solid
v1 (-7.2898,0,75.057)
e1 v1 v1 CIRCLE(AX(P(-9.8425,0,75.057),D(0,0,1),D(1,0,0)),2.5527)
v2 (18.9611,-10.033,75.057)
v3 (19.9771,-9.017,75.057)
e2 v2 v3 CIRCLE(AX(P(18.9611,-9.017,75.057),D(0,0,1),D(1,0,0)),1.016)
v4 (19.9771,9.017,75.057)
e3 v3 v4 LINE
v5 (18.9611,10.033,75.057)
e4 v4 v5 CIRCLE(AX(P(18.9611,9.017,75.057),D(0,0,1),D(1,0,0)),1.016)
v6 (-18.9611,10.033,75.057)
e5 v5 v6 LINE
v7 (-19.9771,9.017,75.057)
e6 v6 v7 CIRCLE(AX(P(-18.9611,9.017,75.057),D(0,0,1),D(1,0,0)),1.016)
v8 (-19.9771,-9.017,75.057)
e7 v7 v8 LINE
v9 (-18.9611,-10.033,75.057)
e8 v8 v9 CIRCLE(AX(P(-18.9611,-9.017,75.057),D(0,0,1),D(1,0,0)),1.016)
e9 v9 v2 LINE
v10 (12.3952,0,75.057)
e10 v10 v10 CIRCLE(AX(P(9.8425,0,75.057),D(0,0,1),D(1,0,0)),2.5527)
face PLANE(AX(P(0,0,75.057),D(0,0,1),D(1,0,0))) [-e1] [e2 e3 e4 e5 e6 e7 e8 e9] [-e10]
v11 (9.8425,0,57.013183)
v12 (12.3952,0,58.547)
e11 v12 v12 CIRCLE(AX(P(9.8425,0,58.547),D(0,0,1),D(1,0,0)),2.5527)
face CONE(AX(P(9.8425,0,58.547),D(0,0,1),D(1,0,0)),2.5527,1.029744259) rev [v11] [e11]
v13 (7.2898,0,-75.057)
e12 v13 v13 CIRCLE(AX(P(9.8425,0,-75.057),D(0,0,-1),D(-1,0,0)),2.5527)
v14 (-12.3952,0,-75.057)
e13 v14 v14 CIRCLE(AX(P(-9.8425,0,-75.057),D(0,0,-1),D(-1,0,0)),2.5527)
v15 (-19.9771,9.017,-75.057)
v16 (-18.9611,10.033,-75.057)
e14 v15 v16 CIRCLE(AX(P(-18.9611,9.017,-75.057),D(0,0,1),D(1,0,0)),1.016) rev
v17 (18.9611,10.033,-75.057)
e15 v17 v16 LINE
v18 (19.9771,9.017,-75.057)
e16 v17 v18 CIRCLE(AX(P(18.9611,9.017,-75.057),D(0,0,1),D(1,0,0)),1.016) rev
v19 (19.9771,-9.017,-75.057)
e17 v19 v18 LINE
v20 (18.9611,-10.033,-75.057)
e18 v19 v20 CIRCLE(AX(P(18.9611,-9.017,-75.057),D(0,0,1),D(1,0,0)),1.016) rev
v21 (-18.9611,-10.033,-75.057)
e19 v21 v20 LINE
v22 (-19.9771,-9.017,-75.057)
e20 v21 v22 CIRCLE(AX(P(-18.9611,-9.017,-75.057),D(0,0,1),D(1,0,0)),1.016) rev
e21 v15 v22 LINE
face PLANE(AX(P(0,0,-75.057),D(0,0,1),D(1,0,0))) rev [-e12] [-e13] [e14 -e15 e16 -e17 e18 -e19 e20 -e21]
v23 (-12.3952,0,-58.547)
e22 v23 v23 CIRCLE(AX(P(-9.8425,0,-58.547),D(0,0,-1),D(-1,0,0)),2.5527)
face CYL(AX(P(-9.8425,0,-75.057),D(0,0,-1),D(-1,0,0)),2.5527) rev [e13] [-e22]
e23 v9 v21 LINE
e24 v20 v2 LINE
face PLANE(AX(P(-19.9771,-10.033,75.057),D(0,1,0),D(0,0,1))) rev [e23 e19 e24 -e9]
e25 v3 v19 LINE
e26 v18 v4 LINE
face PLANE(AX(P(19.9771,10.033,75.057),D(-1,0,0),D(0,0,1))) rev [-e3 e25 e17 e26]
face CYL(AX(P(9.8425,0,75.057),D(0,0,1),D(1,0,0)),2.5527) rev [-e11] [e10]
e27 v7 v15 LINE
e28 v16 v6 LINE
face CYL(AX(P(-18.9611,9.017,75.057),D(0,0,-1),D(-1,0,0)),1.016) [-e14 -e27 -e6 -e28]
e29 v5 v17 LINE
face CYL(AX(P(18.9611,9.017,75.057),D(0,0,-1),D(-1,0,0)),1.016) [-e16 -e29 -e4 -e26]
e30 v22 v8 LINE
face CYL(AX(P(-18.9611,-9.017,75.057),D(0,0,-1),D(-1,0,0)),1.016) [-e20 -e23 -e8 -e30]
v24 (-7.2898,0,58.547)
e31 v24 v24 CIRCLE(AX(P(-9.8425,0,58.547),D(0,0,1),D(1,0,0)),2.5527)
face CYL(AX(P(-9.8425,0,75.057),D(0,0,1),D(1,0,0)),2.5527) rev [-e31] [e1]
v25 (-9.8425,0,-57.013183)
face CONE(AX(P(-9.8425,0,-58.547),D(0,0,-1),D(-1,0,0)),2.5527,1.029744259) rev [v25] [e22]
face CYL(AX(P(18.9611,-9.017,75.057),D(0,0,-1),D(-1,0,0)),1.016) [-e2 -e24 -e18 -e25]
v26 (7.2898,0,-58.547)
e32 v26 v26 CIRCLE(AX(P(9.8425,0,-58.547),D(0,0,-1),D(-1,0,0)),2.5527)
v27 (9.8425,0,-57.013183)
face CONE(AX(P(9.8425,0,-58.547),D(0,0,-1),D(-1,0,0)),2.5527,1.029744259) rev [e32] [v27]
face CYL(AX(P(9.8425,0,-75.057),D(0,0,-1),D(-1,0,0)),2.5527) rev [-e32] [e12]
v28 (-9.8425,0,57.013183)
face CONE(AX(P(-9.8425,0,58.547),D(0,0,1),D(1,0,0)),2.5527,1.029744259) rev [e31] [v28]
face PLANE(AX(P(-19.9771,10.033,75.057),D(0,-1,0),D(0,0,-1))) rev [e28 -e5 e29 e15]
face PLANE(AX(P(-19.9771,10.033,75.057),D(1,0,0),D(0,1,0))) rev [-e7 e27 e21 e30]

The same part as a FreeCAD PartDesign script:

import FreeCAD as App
import Part
import Sketcher

V = App.Vector
Q = App.Units.Quantity


def edges_at(feature, points):
    """Names of the edges that pass closest to the given points."""
    edges = feature.Shape.Edges
    near = lambda p: min(range(len(edges)), key=lambda i: edges[i].distToShape(Part.Vertex(*p))[0])
    return sorted({f"Edge{near(p) + 1}" for p in points})


def add_polygon(sketch, points):
    """Adds a closed chain of lines whose ends are joined by coincident constraints."""
    first, n = sketch.GeometryCount, len(points)
    for a, b in zip(points, points[1:] + points[:1]):
        sketch.addGeometry(Part.LineSegment(App.Vector(*a, 0), App.Vector(*b, 0)), False)
    for i in range(n):
        sketch.addConstraint(Sketcher.Constraint("Coincident", first + i, 2, first + (i + 1) % n, 1))

doc = App.newDocument("Part")
body = doc.addObject("PartDesign::Body", "Body")

# Sketch on XY plane
sketch1 = doc.addObject("Sketcher::SketchObject", "Sketch")
body.addObject(sketch1)
sketch1.AttachmentSupport = (doc.XY_Plane, [""])
sketch1.MapMode = "FlatFace"
add_polygon(sketch1, [(-19.9771, 10.033), (-19.9771, -10.033), (19.9771, -10.033), (19.9771, 10.033)])  # lines 0-3
sketch1.addConstraint([
    Sketcher.Constraint("Vertical", 0),
    Sketcher.Constraint("Horizontal", 1),
    Sketcher.Constraint("Vertical", 2),
    Sketcher.Constraint("Horizontal", 3),
    Sketcher.Constraint("Symmetric", 0, 2, 2, 2, -1, 1),
    Sketcher.Constraint("DistanceY", 0, 2, 0, 1, Q("0.79 in")),
    Sketcher.Constraint("DistanceX", 1, 1, 1, 2, Q("1.573 in")),
])
pad1 = doc.addObject("PartDesign::Pad", "Pad")
body.addObject(pad1)
pad1.Profile = sketch1
pad1.Length = Q("5.91 in")
pad1.Midplane = True
doc.recompute()

fillet = doc.addObject("PartDesign::Fillet", "Fillet")
body.addObject(fillet)
fillet.Base = (pad1, edges_at(pad1, [
    (19.977, -10.033, 0),
    (-19.977, -10.033, 0),
    (-19.977, 10.033, 0),
    (19.977, 10.033, 0),
]))
fillet.Radius = Q("0.04 in")

# Sketch on YZ plane
sketch2 = doc.addObject("Sketcher::SketchObject", "Sketch001")
body.addObject(sketch2)
sketch2.AttachmentSupport = (doc.YZ_Plane, [""])
sketch2.MapMode = "FlatFace"
sketch2.AttachmentOffset = App.Placement(V(0, 0, 0.3875 * 25.4), App.Rotation())
add_polygon(sketch2, [(0, -57.013183), (0, -75.057), (2.5527, -75.057), (2.5527, -58.547)])  # lines 0-3
sketch2.addConstraint([
    Sketcher.Constraint("Vertical", 0),
    Sketcher.Constraint("Horizontal", 1),
    Sketcher.Constraint("Vertical", 2),
    Sketcher.Constraint("PointOnObject", 0, 2, -2),
    Sketcher.Constraint("Angle", 3, Q("149 deg")),
    Sketcher.Constraint("DistanceY", 2, 1, 2, 2, Q("0.65 in")),
    Sketcher.Constraint("DistanceX", 1, 1, 1, 2, Q("0.1005 in")),
    Sketcher.Constraint("DistanceY", 0, 2, -1, 1, Q("2.955 in")),
])
groove = doc.addObject("PartDesign::Groove", "Groove")
body.addObject(groove)
groove.Profile = sketch2
groove.ReferenceAxis = (sketch2, ["V_Axis"])
groove.Angle = 360
doc.recompute()

linearpattern = doc.addObject("PartDesign::LinearPattern", "LinearPattern")
body.addObject(linearpattern)
linearpattern.Originals = [groove]
linearpattern.Direction = (doc.X_Axis, [""])
linearpattern.Mode = "offset"
linearpattern.Offset = Q("0.775 in")
linearpattern.Occurrences = 2
linearpattern.Reversed = True
body.Tip = linearpattern
doc.recompute()

mirrored = doc.addObject("PartDesign::Mirrored", "Mirrored")
body.addObject(mirrored)
mirrored.Originals = [groove]
mirrored.MirrorPlane = (doc.XY_Plane, [""])
body.Tip = mirrored

# Sketch on YZ plane
sketch3 = doc.addObject("Sketcher::SketchObject", "Sketch002")
body.addObject(sketch3)
sketch3.AttachmentSupport = (doc.YZ_Plane, [""])
sketch3.MapMode = "FlatFace"
sketch3.AttachmentOffset = App.Placement(V(0, 0, -0.3875 * 25.4), App.Rotation())
add_polygon(sketch3, [(0, 75.057), (0, 57.013183), (2.5527, 58.547), (2.5527, 75.057)])  # lines 0-3
sketch3.addConstraint([
    Sketcher.Constraint("Vertical", 0),
    Sketcher.Constraint("Vertical", 2),
    Sketcher.Constraint("Horizontal", 3),
    Sketcher.Constraint("PointOnObject", 0, 2, -2),
    Sketcher.Constraint("Angle", 1, Q("31 deg")),
    Sketcher.Constraint("DistanceY", 2, 1, 2, 2, Q("0.65 in")),
    Sketcher.Constraint("DistanceX", 3, 2, 3, 1, Q("0.1005 in")),
    Sketcher.Constraint("DistanceY", -1, 1, 1, 2, Q("2.305 in")),
])
groove2 = doc.addObject("PartDesign::Groove", "Groove001")
body.addObject(groove2)
groove2.Profile = sketch3
groove2.ReferenceAxis = (sketch3, ["V_Axis"])
groove2.Angle = 360

doc.recompute()
